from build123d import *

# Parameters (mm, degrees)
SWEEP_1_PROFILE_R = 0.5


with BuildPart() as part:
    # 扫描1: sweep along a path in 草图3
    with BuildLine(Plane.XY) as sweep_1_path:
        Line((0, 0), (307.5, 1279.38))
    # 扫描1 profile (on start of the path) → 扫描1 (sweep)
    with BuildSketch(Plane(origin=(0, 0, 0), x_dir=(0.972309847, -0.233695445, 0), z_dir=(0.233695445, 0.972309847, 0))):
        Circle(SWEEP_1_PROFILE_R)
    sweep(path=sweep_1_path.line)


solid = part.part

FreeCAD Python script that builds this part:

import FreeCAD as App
import Part
import Sketcher
from FreeCAD import Vector

doc = App.newDocument("Part")
params = doc.addObject("Spreadsheet::Sheet", "Params")
for row, (alias, value) in enumerate([
    ("sketch1_diameter", "1 mm"),
], start=1):
    params.set(f"A{row}", alias)
    params.set(f"B{row}", "=" + value)
    params.setAlias(f"B{row}", alias)

body = doc.addObject("PartDesign::Body", "Body")

# Sketch on an angled plane
sketch1 = body.newObject("Sketcher::SketchObject", "Sketch")
sketch1.Placement = App.Placement(Vector(0, 0, 0), App.Rotation(Vector(0.972309847, -0.233695445, 0), Vector(0, 0, -1), Vector(0.233695445, 0.972309847, 0), "ZXY"))
sketch1.addGeometry(Part.Circle(Vector(0, 0, 0), Vector(0, 0, 1), 0.5), False)
sketch1.addConstraint([
    Sketcher.Constraint("Coincident", 0, 3, -1, 1),
    Sketcher.Constraint("Diameter", 0, 1.0),
])
sketch1.setExpression("Constraints[1]", "Params.sketch1_diameter")

# Sketch on an angled plane
sketch2 = body.newObject("Sketcher::SketchObject", "Sketch001")
sketch2.Placement = App.Placement(Vector(0, 0, 0), App.Rotation(Vector(0.233695445, 0.972309847, 0), Vector(0, 0, 1), Vector(0.972309847, -0.233695445, 0), "ZXY"))
sketch2.addGeometry(Part.LineSegment(Vector(0, 0, 0), Vector(1315.815121, 0, 0)), False)
sketch2.addConstraint([
    Sketcher.Constraint("Horizontal", 0),
    Sketcher.Constraint("Coincident", 0, 1, -1, 1),
    Sketcher.Constraint("DistanceX", 0, 1, 0, 2, 1315.815121),
])
doc.recompute()

additivepipe = body.newObject("PartDesign::AdditivePipe", "AdditivePipe")
additivepipe.Profile = sketch1
additivepipe.Spine = (sketch2, ["Edge1"])

doc.recompute()
